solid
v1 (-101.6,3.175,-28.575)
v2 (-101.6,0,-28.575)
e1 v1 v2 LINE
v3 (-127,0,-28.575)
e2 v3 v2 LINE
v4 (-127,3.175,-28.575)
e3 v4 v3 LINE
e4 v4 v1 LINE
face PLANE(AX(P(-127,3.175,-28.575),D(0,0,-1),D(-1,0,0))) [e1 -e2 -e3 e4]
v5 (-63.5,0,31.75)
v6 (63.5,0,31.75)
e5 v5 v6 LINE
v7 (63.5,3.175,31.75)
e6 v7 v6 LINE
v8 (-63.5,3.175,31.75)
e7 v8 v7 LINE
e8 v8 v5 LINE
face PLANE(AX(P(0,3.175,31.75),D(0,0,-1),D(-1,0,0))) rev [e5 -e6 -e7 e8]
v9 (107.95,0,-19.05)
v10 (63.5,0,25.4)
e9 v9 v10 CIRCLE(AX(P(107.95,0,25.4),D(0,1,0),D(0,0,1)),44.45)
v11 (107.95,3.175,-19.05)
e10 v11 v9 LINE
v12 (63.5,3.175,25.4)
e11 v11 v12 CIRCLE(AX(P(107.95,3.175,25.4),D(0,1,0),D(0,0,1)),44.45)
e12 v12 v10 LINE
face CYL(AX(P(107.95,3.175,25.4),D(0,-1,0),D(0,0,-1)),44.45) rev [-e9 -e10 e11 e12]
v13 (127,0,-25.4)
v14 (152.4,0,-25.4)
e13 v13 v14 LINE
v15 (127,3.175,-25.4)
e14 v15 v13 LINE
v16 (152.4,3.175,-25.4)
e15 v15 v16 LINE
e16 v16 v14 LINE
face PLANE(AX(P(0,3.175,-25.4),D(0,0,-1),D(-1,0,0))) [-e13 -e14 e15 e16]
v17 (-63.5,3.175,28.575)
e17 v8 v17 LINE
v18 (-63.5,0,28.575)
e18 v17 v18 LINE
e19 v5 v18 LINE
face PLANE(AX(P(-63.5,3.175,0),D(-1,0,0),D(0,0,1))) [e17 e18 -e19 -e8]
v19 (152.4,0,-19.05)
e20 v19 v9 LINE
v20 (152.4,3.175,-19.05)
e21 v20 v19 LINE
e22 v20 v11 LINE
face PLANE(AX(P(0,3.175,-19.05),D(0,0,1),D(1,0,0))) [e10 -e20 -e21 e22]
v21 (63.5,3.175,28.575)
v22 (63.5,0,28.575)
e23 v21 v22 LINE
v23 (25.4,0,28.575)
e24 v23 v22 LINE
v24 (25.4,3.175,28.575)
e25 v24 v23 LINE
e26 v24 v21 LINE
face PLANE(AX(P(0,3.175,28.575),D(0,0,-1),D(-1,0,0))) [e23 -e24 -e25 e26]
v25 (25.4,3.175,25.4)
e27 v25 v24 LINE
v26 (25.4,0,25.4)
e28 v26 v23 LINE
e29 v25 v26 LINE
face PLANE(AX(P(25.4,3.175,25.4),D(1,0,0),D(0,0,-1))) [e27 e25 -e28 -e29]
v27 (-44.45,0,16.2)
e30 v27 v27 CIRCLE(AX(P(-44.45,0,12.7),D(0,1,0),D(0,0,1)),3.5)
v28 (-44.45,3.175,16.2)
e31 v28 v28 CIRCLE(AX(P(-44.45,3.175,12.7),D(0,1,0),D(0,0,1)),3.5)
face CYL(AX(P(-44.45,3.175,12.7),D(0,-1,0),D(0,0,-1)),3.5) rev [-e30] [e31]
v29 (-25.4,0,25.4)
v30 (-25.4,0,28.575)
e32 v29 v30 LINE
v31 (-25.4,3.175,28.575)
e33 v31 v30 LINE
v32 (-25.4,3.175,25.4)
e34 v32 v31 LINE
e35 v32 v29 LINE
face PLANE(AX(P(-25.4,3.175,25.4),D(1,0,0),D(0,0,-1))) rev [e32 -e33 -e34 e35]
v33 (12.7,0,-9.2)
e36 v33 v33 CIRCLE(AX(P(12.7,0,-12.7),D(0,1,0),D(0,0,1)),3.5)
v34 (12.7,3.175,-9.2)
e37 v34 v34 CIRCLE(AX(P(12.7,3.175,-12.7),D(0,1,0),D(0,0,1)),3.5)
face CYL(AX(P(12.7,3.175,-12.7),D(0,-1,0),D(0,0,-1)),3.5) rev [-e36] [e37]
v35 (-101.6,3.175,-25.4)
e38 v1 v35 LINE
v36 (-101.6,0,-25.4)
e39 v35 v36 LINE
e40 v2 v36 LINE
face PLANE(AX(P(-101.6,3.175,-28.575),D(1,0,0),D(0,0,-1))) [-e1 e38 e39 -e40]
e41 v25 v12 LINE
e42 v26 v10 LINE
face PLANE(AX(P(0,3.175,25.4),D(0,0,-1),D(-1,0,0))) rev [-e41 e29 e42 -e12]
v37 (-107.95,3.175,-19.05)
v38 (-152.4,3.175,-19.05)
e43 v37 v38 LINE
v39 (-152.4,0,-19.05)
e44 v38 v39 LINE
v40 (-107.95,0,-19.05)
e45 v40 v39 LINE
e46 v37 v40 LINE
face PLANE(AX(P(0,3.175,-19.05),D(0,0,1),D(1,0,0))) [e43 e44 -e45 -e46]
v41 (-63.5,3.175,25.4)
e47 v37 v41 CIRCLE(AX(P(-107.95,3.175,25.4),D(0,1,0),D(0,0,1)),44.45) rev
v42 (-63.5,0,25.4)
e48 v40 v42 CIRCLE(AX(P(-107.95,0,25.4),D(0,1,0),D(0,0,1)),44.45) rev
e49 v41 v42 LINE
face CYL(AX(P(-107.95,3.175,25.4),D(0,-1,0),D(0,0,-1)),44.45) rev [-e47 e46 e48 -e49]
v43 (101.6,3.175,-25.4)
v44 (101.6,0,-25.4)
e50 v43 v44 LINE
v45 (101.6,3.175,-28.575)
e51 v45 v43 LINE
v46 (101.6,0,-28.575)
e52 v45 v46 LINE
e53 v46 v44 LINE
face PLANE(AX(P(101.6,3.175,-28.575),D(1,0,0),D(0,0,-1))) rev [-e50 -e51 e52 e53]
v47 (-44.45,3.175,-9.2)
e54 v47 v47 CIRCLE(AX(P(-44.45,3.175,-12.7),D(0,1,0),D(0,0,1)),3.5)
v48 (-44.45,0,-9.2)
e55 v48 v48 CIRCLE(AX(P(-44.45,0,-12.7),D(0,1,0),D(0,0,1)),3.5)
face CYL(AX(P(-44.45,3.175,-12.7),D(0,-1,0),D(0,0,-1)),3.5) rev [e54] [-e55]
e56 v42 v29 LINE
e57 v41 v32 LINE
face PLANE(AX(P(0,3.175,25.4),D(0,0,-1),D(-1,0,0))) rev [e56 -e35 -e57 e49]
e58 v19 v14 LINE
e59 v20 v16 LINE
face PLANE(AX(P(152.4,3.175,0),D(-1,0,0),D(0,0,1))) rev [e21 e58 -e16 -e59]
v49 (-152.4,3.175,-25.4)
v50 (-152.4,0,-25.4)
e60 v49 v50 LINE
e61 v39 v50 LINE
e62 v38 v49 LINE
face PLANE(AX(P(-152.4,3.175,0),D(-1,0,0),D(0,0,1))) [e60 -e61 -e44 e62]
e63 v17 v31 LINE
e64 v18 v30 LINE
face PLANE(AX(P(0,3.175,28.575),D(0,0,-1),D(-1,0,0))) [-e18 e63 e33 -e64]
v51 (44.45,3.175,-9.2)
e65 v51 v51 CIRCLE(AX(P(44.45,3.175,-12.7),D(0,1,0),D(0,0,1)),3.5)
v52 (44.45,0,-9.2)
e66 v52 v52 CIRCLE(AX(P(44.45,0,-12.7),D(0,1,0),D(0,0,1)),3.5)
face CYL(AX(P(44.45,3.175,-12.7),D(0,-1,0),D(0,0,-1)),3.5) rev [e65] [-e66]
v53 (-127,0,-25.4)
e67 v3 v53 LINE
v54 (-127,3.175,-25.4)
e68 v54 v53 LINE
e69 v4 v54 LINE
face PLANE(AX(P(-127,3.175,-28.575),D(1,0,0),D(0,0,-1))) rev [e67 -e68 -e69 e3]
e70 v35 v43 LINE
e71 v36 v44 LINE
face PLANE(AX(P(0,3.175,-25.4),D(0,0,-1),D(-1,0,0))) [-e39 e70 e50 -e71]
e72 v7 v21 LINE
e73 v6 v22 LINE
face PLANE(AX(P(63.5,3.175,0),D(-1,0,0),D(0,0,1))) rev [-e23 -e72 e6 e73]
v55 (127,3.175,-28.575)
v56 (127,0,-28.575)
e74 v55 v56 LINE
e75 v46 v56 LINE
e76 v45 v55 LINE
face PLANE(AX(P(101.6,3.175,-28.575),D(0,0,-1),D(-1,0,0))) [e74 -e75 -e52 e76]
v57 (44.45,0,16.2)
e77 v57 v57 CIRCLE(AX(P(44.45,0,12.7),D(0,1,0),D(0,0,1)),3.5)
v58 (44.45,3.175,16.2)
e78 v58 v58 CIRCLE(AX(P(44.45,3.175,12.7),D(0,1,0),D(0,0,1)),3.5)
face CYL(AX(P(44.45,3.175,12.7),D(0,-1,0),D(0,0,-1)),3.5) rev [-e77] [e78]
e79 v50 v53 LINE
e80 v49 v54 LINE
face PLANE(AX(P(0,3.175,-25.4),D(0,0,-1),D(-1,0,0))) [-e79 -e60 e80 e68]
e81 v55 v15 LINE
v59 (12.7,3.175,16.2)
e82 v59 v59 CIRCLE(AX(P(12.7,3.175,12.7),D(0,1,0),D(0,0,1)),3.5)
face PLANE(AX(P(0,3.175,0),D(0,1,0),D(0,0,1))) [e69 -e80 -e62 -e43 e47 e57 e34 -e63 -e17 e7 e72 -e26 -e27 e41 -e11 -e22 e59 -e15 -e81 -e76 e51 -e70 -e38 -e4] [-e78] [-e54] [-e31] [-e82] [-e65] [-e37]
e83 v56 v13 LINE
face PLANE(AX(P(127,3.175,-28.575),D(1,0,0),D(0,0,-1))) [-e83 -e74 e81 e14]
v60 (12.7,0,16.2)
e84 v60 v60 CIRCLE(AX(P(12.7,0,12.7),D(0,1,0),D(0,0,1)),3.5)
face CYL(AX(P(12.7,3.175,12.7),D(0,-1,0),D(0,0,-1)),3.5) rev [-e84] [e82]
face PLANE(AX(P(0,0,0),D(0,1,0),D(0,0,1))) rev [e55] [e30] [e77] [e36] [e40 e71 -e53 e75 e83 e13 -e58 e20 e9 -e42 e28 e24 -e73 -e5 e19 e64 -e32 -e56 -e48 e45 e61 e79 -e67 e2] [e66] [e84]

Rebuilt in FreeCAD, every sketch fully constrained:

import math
import FreeCAD as App
import Part
import Sketcher

V = App.Vector
Q = App.Units.Quantity

doc = App.newDocument("Part")
body = doc.addObject("PartDesign::Body", "Body")

# Sketch on XZ plane
sketch1 = body.newObject("Sketcher::SketchObject", "Sketch")
sketch1.AttachmentSupport = (doc.getObject("XZ_Plane"), [""])
sketch1.MapMode = "FlatFace"
sketch1.addGeometry([
    Part.LineSegment(V(-152.4, -19.1, 0), V(-108, -19.1, 0)),  # 0
    Part.ArcOfCircle(Part.Circle(V(-107.9, 25.4, 0), V(0, 0, 1), 44.4), math.radians(-90), math.radians(0)),  # 1
    Part.LineSegment(V(-63.5, 25.4, 0), V(-25.4, 25.4, 0)),  # 2
    Part.LineSegment(V(-25.4, 25.4, 0), V(-25.4, 28.6, 0)),  # 3
    Part.LineSegment(V(-25.4, 28.6, 0), V(-63.5, 28.6, 0)),  # 4
    Part.LineSegment(V(-63.5, 28.6, 0), V(-63.5, 31.8, 0)),  # 5
    Part.LineSegment(V(-63.5, 31.8, 0), V(63.5, 31.8, 0)),  # 6
    Part.LineSegment(V(63.5, 31.8, 0), V(63.5, 28.6, 0)),  # 7
    Part.LineSegment(V(63.5, 28.6, 0), V(25.4, 28.6, 0)),  # 8
    Part.LineSegment(V(25.4, 28.6, 0), V(25.4, 25.4, 0)),  # 9
    Part.LineSegment(V(25.4, 25.4, 0), V(63.5, 25.4, 0)),  # 10
    Part.ArcOfCircle(Part.Circle(V(107.9, 25.4, 0), V(0, 0, 1), 44.4), math.radians(180), math.radians(270)),  # 11
    Part.LineSegment(V(108, -19.1, 0), V(152.4, -19.1, 0)),  # 12
    Part.LineSegment(V(152.4, -19.1, 0), V(152.4, -25.4, 0)),  # 13
    Part.LineSegment(V(152.4, -25.4, 0), V(127, -25.4, 0)),  # 14
    Part.LineSegment(V(127, -25.4, 0), V(127, -28.6, 0)),  # 15
    Part.LineSegment(V(127, -28.6, 0), V(101.6, -28.6, 0)),  # 16
    Part.LineSegment(V(101.6, -28.6, 0), V(101.6, -25.4, 0)),  # 17
    Part.LineSegment(V(101.6, -25.4, 0), V(-101.6, -25.4, 0)),  # 18
    Part.LineSegment(V(-101.6, -25.4, 0), V(-101.6, -28.6, 0)),  # 19
    Part.LineSegment(V(-101.6, -28.6, 0), V(-127, -28.6, 0)),  # 20
    Part.LineSegment(V(-127, -28.6, 0), V(-127, -25.4, 0)),  # 21
    Part.LineSegment(V(-127, -25.4, 0), V(-152.4, -25.4, 0)),  # 22
    Part.LineSegment(V(-152.4, -25.4, 0), V(-152.4, -19.1, 0)),  # 23
    Part.Circle(V(-44.5, 12.7, 0), V(0, 0, 1), 3.5),  # 24
    Part.Circle(V(12.7, 12.7, 0), V(0, 0, 1), 3.5),  # 25
    Part.Circle(V(44.5, 12.7, 0), V(0, 0, 1), 3.5),  # 26
    Part.Circle(V(-44.5, -12.7, 0), V(0, 0, 1), 3.5),  # 27
    Part.Circle(V(12.7, -12.7, 0), V(0, 0, 1), 3.5),  # 28
    Part.Circle(V(44.5, -12.7, 0), V(0, 0, 1), 3.5),  # 29
], False)
sketch1.addConstraint([
    Sketcher.Constraint("Tangent", 0, 2, 1, 1),
    Sketcher.Constraint("Coincident", 1, 2, 2, 1),
    Sketcher.Constraint("Coincident", 2, 2, 3, 1),
    Sketcher.Constraint("Coincident", 3, 2, 4, 1),
    Sketcher.Constraint("Coincident", 4, 2, 5, 1),
    Sketcher.Constraint("Coincident", 5, 2, 6, 1),
    Sketcher.Constraint("Coincident", 6, 2, 7, 1),
    Sketcher.Constraint("Coincident", 7, 2, 8, 1),
    Sketcher.Constraint("Coincident", 8, 2, 9, 1),
    Sketcher.Constraint("Coincident", 9, 2, 10, 1),
    Sketcher.Constraint("Coincident", 10, 2, 11, 1),
    Sketcher.Constraint("Tangent", 11, 2, 12, 1),
    Sketcher.Constraint("Coincident", 12, 2, 13, 1),
    Sketcher.Constraint("Coincident", 13, 2, 14, 1),
    Sketcher.Constraint("Coincident", 14, 2, 15, 1),
    Sketcher.Constraint("Coincident", 15, 2, 16, 1),
    Sketcher.Constraint("Coincident", 16, 2, 17, 1),
    Sketcher.Constraint("Coincident", 17, 2, 18, 1),
    Sketcher.Constraint("Coincident", 18, 2, 19, 1),
    Sketcher.Constraint("Coincident", 19, 2, 20, 1),
    Sketcher.Constraint("Coincident", 20, 2, 21, 1),
    Sketcher.Constraint("Coincident", 21, 2, 22, 1),
    Sketcher.Constraint("Coincident", 22, 2, 23, 1),
    Sketcher.Constraint("Coincident", 23, 2, 0, 1),
    Sketcher.Constraint("Horizontal", 0),
    Sketcher.Constraint("Horizontal", 2),
    Sketcher.Constraint("Vertical", 3),
    Sketcher.Constraint("Horizontal", 4),
    Sketcher.Constraint("Vertical", 5),
    Sketcher.Constraint("Horizontal", 6),
    Sketcher.Constraint("Vertical", 7),
    Sketcher.Constraint("Horizontal", 8),
    Sketcher.Constraint("Vertical", 9),
    Sketcher.Constraint("Horizontal", 10),
    Sketcher.Constraint("Horizontal", 12),
    Sketcher.Constraint("Vertical", 13),
    Sketcher.Constraint("Horizontal", 14),
    Sketcher.Constraint("Vertical", 15),
    Sketcher.Constraint("Horizontal", 16),
    Sketcher.Constraint("Vertical", 17),
    Sketcher.Constraint("Horizontal", 18),
    Sketcher.Constraint("Vertical", 19),
    Sketcher.Constraint("Horizontal", 20),
    Sketcher.Constraint("Vertical", 21),
    Sketcher.Constraint("Horizontal", 22),
    Sketcher.Constraint("Vertical", 23),
    Sketcher.Constraint("Equal", 1, 11),
    Sketcher.Constraint("Equal", 24, 25),
    Sketcher.Constraint("Equal", 25, 26),
    Sketcher.Constraint("Equal", 26, 27),
    Sketcher.Constraint("Equal", 27, 28),
    Sketcher.Constraint("Equal", 28, 29),
    Sketcher.Constraint("Symmetric", 26, 3, 27, 3, -1, 1),
    Sketcher.Constraint("Symmetric", 24, 3, 29, 3, -1, 1),
    Sketcher.Constraint("Symmetric", 1, 3, 11, 3, -2),
    Sketcher.Constraint("Symmetric", 24, 3, 26, 3, -2),
    Sketcher.Constraint("Symmetric", 4, 2, 7, 2, -2),
    Sketcher.Constraint("Symmetric", 2, 2, 9, 2, -2),
    Sketcher.Constraint("Symmetric", 16, 2, 19, 2, -2),
    Sketcher.Constraint("Symmetric", 14, 2, 21, 2, -2),
    Sketcher.Constraint("Symmetric", 25, 3, 28, 3, -1),
    Sketcher.Constraint("Horizontal", 24, 3, 25, 3),
    Sketcher.Constraint("Horizontal", 11, 3, 1, 2),
    Sketcher.Constraint("Horizontal", 14, 2, 17, 2),
    Sketcher.Constraint("Vertical", 1, 2, 4, 2),
    Sketcher.Constraint("Equal", 0, 12),
    Sketcher.Constraint("Equal", 14, 16),
    Sketcher.Constraint("Equal", 3, 5),
    Sketcher.Constraint("Equal", 9, 15),
    Sketcher.Constraint("DistanceX", 6, 1, 6, 2, Q("5 in")),
    Sketcher.Constraint("DistanceX", 14, 2, 14, 1, Q("1 in")),
    Sketcher.Constraint("DistanceX", 18, 2, 18, 1, Q("8 in")),
    Sketcher.Constraint("Radius", 1, Q("1.75 in")),
    Sketcher.Constraint("DistanceX", 2, 1, 2, 2, Q("1.5 in")),
    Sketcher.Constraint("DistanceY", -1, 1, 1, 3, Q("1 in")),
    Sketcher.Constraint("DistanceY", 13, 2, -1, 1, Q("1 in")),
    Sketcher.Constraint("DistanceX", 24, 3, 11, 3, Q("6 in")),
    Sketcher.Constraint("DistanceY", 27, 3, 24, 3, Q("1 in")),
    Sketcher.Constraint("DistanceX", 1, 2, 25, 3, Q("3 in")),
    Sketcher.Constraint("DistanceY", 11, 2, 6, 2, Q("2 in")),
    Sketcher.Constraint("Diameter", 24, 7.0),
])
pad1 = body.newObject("PartDesign::Pad", "Pad")
pad1.Profile = sketch1
pad1.Length = Q("0.125 in")
pad1.Reversed = True

doc.recompute()
